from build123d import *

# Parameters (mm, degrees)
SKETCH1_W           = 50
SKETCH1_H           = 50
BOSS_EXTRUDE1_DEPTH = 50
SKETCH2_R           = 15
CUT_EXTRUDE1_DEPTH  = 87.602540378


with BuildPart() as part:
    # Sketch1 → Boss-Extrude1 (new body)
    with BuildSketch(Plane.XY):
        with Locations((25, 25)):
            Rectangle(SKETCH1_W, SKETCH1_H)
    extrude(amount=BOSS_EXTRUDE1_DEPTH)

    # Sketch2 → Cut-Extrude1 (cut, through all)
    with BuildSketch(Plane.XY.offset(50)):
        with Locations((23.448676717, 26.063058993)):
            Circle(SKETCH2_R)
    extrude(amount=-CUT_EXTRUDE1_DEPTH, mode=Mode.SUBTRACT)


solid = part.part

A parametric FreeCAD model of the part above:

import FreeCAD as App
import Part
import Sketcher
from FreeCAD import Vector

doc = App.newDocument("Part")
body = doc.addObject("PartDesign::Body", "Body")

# Sketch on XY plane
sketch1 = body.newObject("Sketcher::SketchObject", "Sketch")
sketch1.AttachmentSupport = (doc.getObject("XY_Plane"), [""])
sketch1.MapMode = "FlatFace"
sketch1.addGeometry(Part.LineSegment(Vector(0, 50, 0), Vector(0, 0, 0)), False)
sketch1.addGeometry(Part.LineSegment(Vector(0, 0, 0), Vector(50, 0, 0)), False)
sketch1.addGeometry(Part.LineSegment(Vector(50, 0, 0), Vector(50, 50, 0)), False)
sketch1.addGeometry(Part.LineSegment(Vector(50, 50, 0), Vector(0, 50, 0)), False)
sketch1.addConstraint(Sketcher.Constraint("Coincident", 0, 2, 1, 1))
sketch1.addConstraint(Sketcher.Constraint("Coincident", 1, 2, 2, 1))
sketch1.addConstraint(Sketcher.Constraint("Coincident", 2, 2, 3, 1))
sketch1.addConstraint(Sketcher.Constraint("Coincident", 3, 2, 0, 1))
sketch1.addConstraint(Sketcher.Constraint("Vertical", 0))
sketch1.addConstraint(Sketcher.Constraint("Horizontal", 1))
sketch1.addConstraint(Sketcher.Constraint("Vertical", 2))
sketch1.addConstraint(Sketcher.Constraint("Horizontal", 3))
sketch1.addConstraint(Sketcher.Constraint("Coincident", 0, 2, -1, 1))
sketch1.addConstraint(Sketcher.Constraint("Equal", 3, 0))
sketch1.addConstraint(Sketcher.Constraint("DistanceX", 1, 1, 1, 2, 50.0))
pad1 = body.newObject("PartDesign::Pad", "Pad")
pad1.Profile = sketch1
pad1.Length = 50

# Sketch on XY plane
sketch2 = body.newObject("Sketcher::SketchObject", "Sketch001")
sketch2.AttachmentSupport = (doc.getObject("XY_Plane"), [""])
sketch2.MapMode = "FlatFace"
sketch2.AttachmentOffset = App.Placement(Vector(0, 0, 50), App.Rotation())
sketch2.addGeometry(Part.Circle(Vector(23, 26, 0), Vector(0, 0, 1), 15), False)
sketch2.addConstraint(Sketcher.Constraint("Diameter", 0, 30.0))
sketch2.addConstraint(Sketcher.Constraint("DistanceY", -1, 1, 0, 3, 26.063059))
sketch2.addConstraint(Sketcher.Constraint("DistanceX", -1, 1, 0, 3, 23.448677))
pocket1 = body.newObject("PartDesign::Pocket", "Pocket")
pocket1.Profile = sketch2
pocket1.Type = "ThroughAll"

doc.recompute()
